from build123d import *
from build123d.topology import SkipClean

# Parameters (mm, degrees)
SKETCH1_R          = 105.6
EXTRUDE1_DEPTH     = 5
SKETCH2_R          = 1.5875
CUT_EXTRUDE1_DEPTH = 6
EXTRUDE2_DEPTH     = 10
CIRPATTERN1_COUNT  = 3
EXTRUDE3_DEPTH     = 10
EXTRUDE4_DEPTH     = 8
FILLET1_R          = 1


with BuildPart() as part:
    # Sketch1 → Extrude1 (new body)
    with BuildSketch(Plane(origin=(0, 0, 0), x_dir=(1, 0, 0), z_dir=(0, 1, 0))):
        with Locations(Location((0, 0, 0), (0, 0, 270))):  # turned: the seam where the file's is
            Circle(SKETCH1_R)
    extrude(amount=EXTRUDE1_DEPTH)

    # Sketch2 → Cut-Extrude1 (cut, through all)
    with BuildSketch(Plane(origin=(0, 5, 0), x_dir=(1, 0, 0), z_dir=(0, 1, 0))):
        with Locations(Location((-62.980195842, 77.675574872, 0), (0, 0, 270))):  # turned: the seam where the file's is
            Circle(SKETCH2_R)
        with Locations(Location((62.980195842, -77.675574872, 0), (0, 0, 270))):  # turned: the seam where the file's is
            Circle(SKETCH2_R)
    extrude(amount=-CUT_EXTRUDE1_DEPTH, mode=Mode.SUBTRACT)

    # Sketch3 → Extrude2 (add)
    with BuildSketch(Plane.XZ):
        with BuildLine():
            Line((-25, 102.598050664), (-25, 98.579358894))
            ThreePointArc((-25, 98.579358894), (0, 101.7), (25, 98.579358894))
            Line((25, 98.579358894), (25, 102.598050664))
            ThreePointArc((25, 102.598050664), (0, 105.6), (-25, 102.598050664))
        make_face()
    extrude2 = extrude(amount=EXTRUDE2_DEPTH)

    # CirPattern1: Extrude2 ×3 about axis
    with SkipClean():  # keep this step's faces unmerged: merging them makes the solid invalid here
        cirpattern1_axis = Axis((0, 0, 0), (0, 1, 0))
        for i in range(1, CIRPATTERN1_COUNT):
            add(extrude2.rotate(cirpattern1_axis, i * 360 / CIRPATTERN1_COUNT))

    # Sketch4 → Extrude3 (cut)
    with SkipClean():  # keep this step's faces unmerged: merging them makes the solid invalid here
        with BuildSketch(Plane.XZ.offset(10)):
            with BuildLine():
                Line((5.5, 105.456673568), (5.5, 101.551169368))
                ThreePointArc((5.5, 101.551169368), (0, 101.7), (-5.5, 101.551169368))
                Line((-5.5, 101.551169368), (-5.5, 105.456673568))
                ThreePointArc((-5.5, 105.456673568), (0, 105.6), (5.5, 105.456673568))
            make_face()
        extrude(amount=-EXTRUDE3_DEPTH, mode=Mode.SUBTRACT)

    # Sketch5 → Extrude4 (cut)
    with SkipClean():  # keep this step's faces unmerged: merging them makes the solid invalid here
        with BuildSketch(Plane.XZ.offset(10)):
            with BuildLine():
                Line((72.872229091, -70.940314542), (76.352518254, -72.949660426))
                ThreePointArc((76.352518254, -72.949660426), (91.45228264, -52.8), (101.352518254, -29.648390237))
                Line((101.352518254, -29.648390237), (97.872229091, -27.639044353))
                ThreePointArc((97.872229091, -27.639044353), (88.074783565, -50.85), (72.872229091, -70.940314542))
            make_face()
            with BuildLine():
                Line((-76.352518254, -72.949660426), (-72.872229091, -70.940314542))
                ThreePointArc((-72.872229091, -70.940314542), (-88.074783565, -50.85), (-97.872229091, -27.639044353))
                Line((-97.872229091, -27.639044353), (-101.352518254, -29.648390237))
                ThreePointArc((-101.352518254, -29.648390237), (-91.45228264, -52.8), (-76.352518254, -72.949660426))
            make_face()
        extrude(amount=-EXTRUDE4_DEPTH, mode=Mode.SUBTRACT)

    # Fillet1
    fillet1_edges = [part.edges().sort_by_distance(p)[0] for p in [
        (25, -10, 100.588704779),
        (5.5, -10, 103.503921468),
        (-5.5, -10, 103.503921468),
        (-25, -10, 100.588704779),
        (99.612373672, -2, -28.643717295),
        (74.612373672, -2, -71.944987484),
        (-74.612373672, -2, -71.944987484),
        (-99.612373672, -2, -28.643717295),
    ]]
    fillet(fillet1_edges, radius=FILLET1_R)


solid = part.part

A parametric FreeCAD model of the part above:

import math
import FreeCAD as App
import Part
import Sketcher
Q = App.Units.Quantity


def edges_at(feature, points):
    """Names of the edges that pass closest to the given points."""
    edges = feature.Shape.Edges
    near = lambda p: min(range(len(edges)), key=lambda i: edges[i].distToShape(Part.Vertex(*p))[0])
    return sorted({f"Edge{near(p) + 1}" for p in points})

doc = App.newDocument("Part")
params = doc.addObject("Spreadsheet::Sheet", "Params")
for row, (alias, value) in enumerate([
    ("sketch1_diameter", "211.2 mm"),
    ("pad1_length", "5 mm"),
    ("sketch3_radius", "101.7 mm"),
    ("sketch3_radius2", "105.6 mm"),
    ("pad2_length", "10 mm"),
    ("sketch4_radius", "105.6 mm"),
    ("sketch4_radius2", "101.7 mm"),
    ("pocket2_length", "10 mm"),
    ("sketch5_radius", "105.6 mm"),
    ("sketch5_radius2", "101.7 mm"),
    ("pocket3_length", "8 mm"),
    ("fillet_radius", "1 mm"),
], start=1):
    params.set(f"A{row}", alias)
    params.set(f"B{row}", "=" + value)
    params.setAlias(f"B{row}", alias)

body = doc.addObject("PartDesign::Body", "Body")

# Sketch on XZ plane
sketch1 = doc.addObject("Sketcher::SketchObject", "Sketch")
body.addObject(sketch1)
sketch1.AttachmentSupport = (doc.XZ_Plane, [""])
sketch1.MapMode = "FlatFace"
sketch1.addGeometry(Part.Circle(App.Vector(0, 0, 0), App.Vector(0, 0, 1), 105.6), False)
sketch1.addConstraint(Sketcher.Constraint("Coincident", 0, 3, -1, 1))
sketch1.addConstraint(Sketcher.Constraint("Diameter", 0, 211.2))
sketch1.setExpression("Constraints[1]", "Params.sketch1_diameter")
pad1 = doc.addObject("PartDesign::Pad", "Pad")
body.addObject(pad1)
pad1.Profile = sketch1
pad1.setExpression("Length", "Params.pad1_length")
pad1.Reversed = True

# Sketch on XZ plane
sketch2 = doc.addObject("Sketcher::SketchObject", "Sketch001")
body.addObject(sketch2)
sketch2.AttachmentSupport = (doc.XZ_Plane, [""])
sketch2.MapMode = "FlatFace"
sketch2.AttachmentOffset = App.Placement(App.Vector(0, 0, -5), App.Rotation())
sketch2.addGeometry(Part.Circle(App.Vector(-62.980196, -77.675575, 0), App.Vector(0, 0, 1), 1.5875), False)
sketch2.addGeometry(Part.Circle(App.Vector(62.980196, 77.675575, 0), App.Vector(0, 0, 1), 1.5875), False)
sketch2.addConstraint(Sketcher.Constraint("Equal", 0, 1))
sketch2.addConstraint(Sketcher.Constraint("Symmetric", 0, 3, 1, 3, -1, 1))
sketch2.addConstraint(Sketcher.Constraint("Diameter", 0, 3.175))
sketch2.addConstraint(Sketcher.Constraint("DistanceX", 0, 3, 1, 3, 125.960392))
sketch2.addConstraint(Sketcher.Constraint("DistanceY", 0, 3, 1, 3, 155.35115))
pocket1 = doc.addObject("PartDesign::Pocket", "Pocket")
body.addObject(pocket1)
pocket1.Profile = sketch2
pocket1.Type = "ThroughAll"
pocket1.Reversed = True

# Sketch on XZ plane
sketch3 = doc.addObject("Sketcher::SketchObject", "Sketch002")
body.addObject(sketch3)
sketch3.AttachmentSupport = (doc.XZ_Plane, [""])
sketch3.MapMode = "FlatFace"
sketch3.addGeometry(Part.LineSegment(App.Vector(-25, 102.598051, 0), App.Vector(-25, 98.579359, 0)), False)
sketch3.addGeometry(Part.ArcOfCircle(Part.Circle(App.Vector(0, 0, 0), App.Vector(0, 0, 1), 101.7), math.radians(75.76964), math.radians(104.23036)), False)
sketch3.addGeometry(Part.LineSegment(App.Vector(25, 98.579359, 0), App.Vector(25, 102.598051, 0)), False)
sketch3.addGeometry(Part.ArcOfCircle(Part.Circle(App.Vector(0, 0, 0), App.Vector(0, 0, 1), 105.6), math.radians(76.305645), math.radians(103.694355)), False)
sketch3.addConstraint(Sketcher.Constraint("Coincident", 0, 2, 1, 2))
sketch3.addConstraint(Sketcher.Constraint("Coincident", 1, 1, 2, 1))
sketch3.addConstraint(Sketcher.Constraint("Coincident", 2, 2, 3, 1))
sketch3.addConstraint(Sketcher.Constraint("Coincident", 3, 2, 0, 1))
sketch3.addConstraint(Sketcher.Constraint("Vertical", 0))
sketch3.addConstraint(Sketcher.Constraint("Vertical", 2))
sketch3.addConstraint(Sketcher.Constraint("Coincident", 1, 3, -1, 1))
sketch3.addConstraint(Sketcher.Constraint("Coincident", 3, 3, -1, 1))
sketch3.addConstraint(Sketcher.Constraint("Horizontal", 0, 2, 1, 1))
sketch3.addConstraint(Sketcher.Constraint("Radius", 1, 101.7))
sketch3.addConstraint(Sketcher.Constraint("Radius", 3, 105.6))
sketch3.addConstraint(Sketcher.Constraint("DistanceX", 0, 2, -1, 1, 25.0))
sketch3.setExpression("Constraints[9]", "Params.sketch3_radius")
sketch3.setExpression("Constraints[10]", "Params.sketch3_radius2")
pad2 = doc.addObject("PartDesign::Pad", "Pad001")
body.addObject(pad2)
pad2.Profile = sketch3
pad2.setExpression("Length", "Params.pad2_length")
doc.recompute()

polarpattern = doc.addObject("PartDesign::PolarPattern", "PolarPattern")
body.addObject(polarpattern)
polarpattern.Originals = [pad2]
polarpattern.Axis = (doc.Y_Axis, [""])
polarpattern.Angle = 360
polarpattern.Occurrences = 3
body.Tip = polarpattern

# Sketch on XZ plane
sketch4 = doc.addObject("Sketcher::SketchObject", "Sketch003")
body.addObject(sketch4)
sketch4.AttachmentSupport = (doc.XZ_Plane, [""])
sketch4.MapMode = "FlatFace"
sketch4.AttachmentOffset = App.Placement(App.Vector(0, 0, 10), App.Rotation())
sketch4.addGeometry(Part.LineSegment(App.Vector(5.5, 101.551169, 0), App.Vector(5.5, 105.456674, 0)), False)
sketch4.addGeometry(Part.ArcOfCircle(Part.Circle(App.Vector(0, 0, 0), App.Vector(0, 0, 1), 105.6), math.radians(87.014494), math.radians(92.985506)), False)
sketch4.addGeometry(Part.LineSegment(App.Vector(-5.5, 105.456674, 0), App.Vector(-5.5, 101.551169, 0)), False)
sketch4.addGeometry(Part.ArcOfCircle(Part.Circle(App.Vector(0, 0, 0), App.Vector(0, 0, 1), 101.7), math.radians(86.899896), math.radians(93.100104)), False)
sketch4.addConstraint(Sketcher.Constraint("Coincident", 0, 2, 1, 1))
sketch4.addConstraint(Sketcher.Constraint("Coincident", 1, 2, 2, 1))
sketch4.addConstraint(Sketcher.Constraint("Coincident", 2, 2, 3, 2))
sketch4.addConstraint(Sketcher.Constraint("Coincident", 3, 1, 0, 1))
sketch4.addConstraint(Sketcher.Constraint("Vertical", 0))
sketch4.addConstraint(Sketcher.Constraint("Vertical", 2))
sketch4.addConstraint(Sketcher.Constraint("Coincident", 1, 3, -1, 1))
sketch4.addConstraint(Sketcher.Constraint("Coincident", 3, 3, -1, 1))
sketch4.addConstraint(Sketcher.Constraint("Horizontal", 0, 2, 1, 2))
sketch4.addConstraint(Sketcher.Constraint("Radius", 1, 105.6))
sketch4.addConstraint(Sketcher.Constraint("Radius", 3, 101.7))
sketch4.addConstraint(Sketcher.Constraint("DistanceX", 1, 2, 0, 2, 11.0))
sketch4.setExpression("Constraints[9]", "Params.sketch4_radius")
sketch4.setExpression("Constraints[10]", "Params.sketch4_radius2")
pocket2 = doc.addObject("PartDesign::Pocket", "Pocket001")
body.addObject(pocket2)
pocket2.Profile = sketch4
pocket2.setExpression("Length", "Params.pocket2_length")

# Sketch on XZ plane
sketch5 = doc.addObject("Sketcher::SketchObject", "Sketch004")
body.addObject(sketch5)
sketch5.AttachmentSupport = (doc.XZ_Plane, [""])
sketch5.MapMode = "FlatFace"
sketch5.AttachmentOffset = App.Placement(App.Vector(0, 0, 10), App.Rotation())
sketch5.addGeometry(Part.LineSegment(App.Vector(72.872229, -70.940315, 0), App.Vector(76.352518, -72.94966, 0)), False)
sketch5.addGeometry(Part.ArcOfCircle(Part.Circle(App.Vector(0, 0, 0), App.Vector(0, 0, 1), 105.6), math.radians(-43.694355), math.radians(-16.305645)), False)
sketch5.addGeometry(Part.LineSegment(App.Vector(101.352518, -29.64839, 0), App.Vector(97.872229, -27.639044, 0)), False)
sketch5.addGeometry(Part.ArcOfCircle(Part.Circle(App.Vector(0, 0, 0), App.Vector(0, 0, 1), 101.7), math.radians(-44.23036), math.radians(-15.76964)), False)
sketch5.addGeometry(Part.LineSegment(App.Vector(-76.352518, -72.94966, 0), App.Vector(-72.872229, -70.940315, 0)), False)
sketch5.addGeometry(Part.ArcOfCircle(Part.Circle(App.Vector(0, 0, 0), App.Vector(0, 0, 1), 101.7), math.radians(-164.23036), math.radians(-135.76964)), False)
sketch5.addGeometry(Part.LineSegment(App.Vector(-97.872229, -27.639044, 0), App.Vector(-101.352518, -29.64839, 0)), False)
sketch5.addGeometry(Part.ArcOfCircle(Part.Circle(App.Vector(0, 0, 0), App.Vector(0, 0, 1), 105.6), math.radians(-163.694355), math.radians(-136.305645)), False)
sketch5.addConstraint(Sketcher.Constraint("Coincident", 0, 2, 1, 1))
sketch5.addConstraint(Sketcher.Constraint("Coincident", 1, 2, 2, 1))
sketch5.addConstraint(Sketcher.Constraint("Coincident", 2, 2, 3, 2))
sketch5.addConstraint(Sketcher.Constraint("Coincident", 3, 1, 0, 1))
sketch5.addConstraint(Sketcher.Constraint("Coincident", 4, 2, 5, 2))
sketch5.addConstraint(Sketcher.Constraint("Coincident", 5, 1, 6, 1))
sketch5.addConstraint(Sketcher.Constraint("Coincident", 6, 2, 7, 1))
sketch5.addConstraint(Sketcher.Constraint("Coincident", 7, 2, 4, 1))
sketch5.addConstraint(Sketcher.Constraint("Coincident", 1, 3, -1, 1))
sketch5.addConstraint(Sketcher.Constraint("Coincident", 3, 3, -1, 1))
sketch5.addConstraint(Sketcher.Constraint("Coincident", 5, 3, -1, 1))
sketch5.addConstraint(Sketcher.Constraint("Coincident", 7, 3, -1, 1))
sketch5.addConstraint(Sketcher.Constraint("Equal", 3, 5))
sketch5.addConstraint(Sketcher.Constraint("Equal", 1, 7))
sketch5.addConstraint(Sketcher.Constraint("Parallel", 0, 2))
sketch5.addConstraint(Sketcher.Constraint("Parallel", 4, 6))
sketch5.addConstraint(Sketcher.Constraint("Horizontal", 3, 1, 4, 2))
sketch5.addConstraint(Sketcher.Constraint("Horizontal", 2, 2, 5, 1))
sketch5.addConstraint(Sketcher.Constraint("Horizontal", 1, 2, 6, 2))
sketch5.addConstraint(Sketcher.Constraint("Equal", 0, 2))
sketch5.addConstraint(Sketcher.Constraint("Radius", 1, 105.6))
sketch5.addConstraint(Sketcher.Constraint("Radius", 3, 101.7))
sketch5.addConstraint(Sketcher.Constraint("Angle", 0, Q("-30 deg")))
sketch5.addConstraint(Sketcher.Constraint("DistanceX", 0, 2, 1, 2, 25.0))
sketch5.setExpression("Constraints[20]", "Params.sketch5_radius")
sketch5.setExpression("Constraints[21]", "Params.sketch5_radius2")
pocket3 = doc.addObject("PartDesign::Pocket", "Pocket002")
body.addObject(pocket3)
pocket3.Profile = sketch5
pocket3.setExpression("Length", "Params.pocket3_length")
doc.recompute()

fillet = doc.addObject("PartDesign::Fillet", "Fillet")
body.addObject(fillet)
fillet.Base = (pocket3, edges_at(pocket3, [
    (25, -10, 100.589),
    (5.5, -10, 103.504),
    (-5.5, -10, 103.504),
    (-25, -10, 100.589),
    (99.612, -2, -28.644),
    (74.612, -2, -71.945),
    (-74.612, -2, -71.945),
    (-99.612, -2, -28.644),
]))
fillet.setExpression("Radius", "Params.fillet_radius")

doc.recompute()
